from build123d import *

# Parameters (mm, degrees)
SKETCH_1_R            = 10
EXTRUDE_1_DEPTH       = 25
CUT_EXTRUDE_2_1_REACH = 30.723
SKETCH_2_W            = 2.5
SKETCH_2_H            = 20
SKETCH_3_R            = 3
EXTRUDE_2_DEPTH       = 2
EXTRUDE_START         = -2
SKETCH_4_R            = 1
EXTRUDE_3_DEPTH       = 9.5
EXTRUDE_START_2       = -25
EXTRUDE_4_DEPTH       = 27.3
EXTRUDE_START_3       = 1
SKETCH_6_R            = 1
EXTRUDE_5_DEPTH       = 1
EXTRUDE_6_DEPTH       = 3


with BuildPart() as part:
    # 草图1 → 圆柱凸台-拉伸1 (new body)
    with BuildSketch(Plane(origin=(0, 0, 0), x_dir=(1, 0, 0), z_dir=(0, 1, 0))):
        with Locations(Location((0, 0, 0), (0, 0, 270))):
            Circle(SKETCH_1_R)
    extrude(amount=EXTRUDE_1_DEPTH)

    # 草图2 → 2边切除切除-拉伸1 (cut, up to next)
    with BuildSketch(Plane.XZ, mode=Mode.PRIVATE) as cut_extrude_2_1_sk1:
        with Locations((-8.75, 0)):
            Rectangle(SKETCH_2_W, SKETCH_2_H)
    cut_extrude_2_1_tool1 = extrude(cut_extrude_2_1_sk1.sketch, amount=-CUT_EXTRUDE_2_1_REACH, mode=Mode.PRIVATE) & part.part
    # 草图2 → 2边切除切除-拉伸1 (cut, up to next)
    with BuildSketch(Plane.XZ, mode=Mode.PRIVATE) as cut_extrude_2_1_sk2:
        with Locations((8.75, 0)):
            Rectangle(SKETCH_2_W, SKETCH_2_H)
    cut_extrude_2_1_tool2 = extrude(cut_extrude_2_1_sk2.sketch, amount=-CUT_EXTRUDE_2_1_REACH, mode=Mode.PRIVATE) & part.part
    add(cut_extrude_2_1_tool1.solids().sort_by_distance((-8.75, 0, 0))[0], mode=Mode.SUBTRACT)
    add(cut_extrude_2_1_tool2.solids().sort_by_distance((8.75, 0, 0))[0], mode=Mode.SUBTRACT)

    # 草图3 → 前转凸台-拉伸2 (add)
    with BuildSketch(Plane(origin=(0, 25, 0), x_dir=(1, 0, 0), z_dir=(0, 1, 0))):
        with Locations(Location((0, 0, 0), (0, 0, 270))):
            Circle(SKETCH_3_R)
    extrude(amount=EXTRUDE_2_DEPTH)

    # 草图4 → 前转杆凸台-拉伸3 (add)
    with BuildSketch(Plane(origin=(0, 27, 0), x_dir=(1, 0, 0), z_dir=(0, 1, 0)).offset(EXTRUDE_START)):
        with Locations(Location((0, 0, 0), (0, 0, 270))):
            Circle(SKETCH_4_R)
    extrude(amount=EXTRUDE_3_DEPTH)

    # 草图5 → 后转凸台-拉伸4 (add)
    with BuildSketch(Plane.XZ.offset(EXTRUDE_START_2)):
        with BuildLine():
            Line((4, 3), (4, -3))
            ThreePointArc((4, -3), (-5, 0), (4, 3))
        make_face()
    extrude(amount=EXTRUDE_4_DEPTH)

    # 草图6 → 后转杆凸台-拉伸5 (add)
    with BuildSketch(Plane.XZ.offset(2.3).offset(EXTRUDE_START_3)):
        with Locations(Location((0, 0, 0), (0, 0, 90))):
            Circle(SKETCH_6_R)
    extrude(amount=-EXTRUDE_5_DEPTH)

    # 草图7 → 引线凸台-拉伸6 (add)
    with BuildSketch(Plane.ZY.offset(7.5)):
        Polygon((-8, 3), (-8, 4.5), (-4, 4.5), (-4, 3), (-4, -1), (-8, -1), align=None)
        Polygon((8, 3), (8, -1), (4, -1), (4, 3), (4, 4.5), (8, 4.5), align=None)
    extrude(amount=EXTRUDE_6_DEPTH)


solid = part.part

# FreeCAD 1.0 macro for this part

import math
import FreeCAD as App
import Part
import Sketcher

V = App.Vector


def add_polygon(sketch, points):
    """Adds a closed chain of lines whose ends are joined by coincident constraints."""
    first, n = sketch.GeometryCount, len(points)
    for a, b in zip(points, points[1:] + points[:1]):
        sketch.addGeometry(Part.LineSegment(App.Vector(*a, 0), App.Vector(*b, 0)), False)
    for i in range(n):
        sketch.addConstraint(Sketcher.Constraint("Coincident", first + i, 2, first + (i + 1) % n, 1))

doc = App.newDocument("Part")
body = doc.addObject("PartDesign::Body", "Body")

sketch1 = doc.addObject("Sketcher::SketchObject", "Sketch")
body.addObject(sketch1)
sketch1.AttachmentSupport = (doc.XZ_Plane, [""])
sketch1.MapMode = "FlatFace"
sketch1.addGeometry(Part.Circle(V(0, 0, 0), V(0, 0, 1), 10), False)
sketch1.addConstraint([
    Sketcher.Constraint("Coincident", 0, 3, -1, 1),
    Sketcher.Constraint("Diameter", 0, 20.0),
])
pad1 = doc.addObject("PartDesign::Pad", "Pad")
body.addObject(pad1)
pad1.Profile = sketch1
pad1.Length = 25
pad1.Reversed = True

sketch2 = doc.addObject("Sketcher::SketchObject", "Sketch001")
body.addObject(sketch2)
sketch2.AttachmentSupport = (doc.XZ_Plane, [""])
sketch2.MapMode = "FlatFace"
add_polygon(sketch2, [(-10, 10), (-10, -10), (-7.5, -10), (-7.5, 10)])
sketch2.addConstraint([
    Sketcher.Constraint("Vertical", 0),
    Sketcher.Constraint("Horizontal", 1),
    Sketcher.Constraint("Vertical", 2),
    Sketcher.Constraint("Horizontal", 3),
    Sketcher.Constraint("DistanceY", 0, 2, 0, 1, 20.0),
    Sketcher.Constraint("DistanceX", 1, 1, 1, 2, 2.5),
    Sketcher.Constraint("DistanceX", 0, 2, -1, 1, 10.0),
    Sketcher.Constraint("DistanceY", 0, 2, -1, 1, 10.0),
])
pocket1 = doc.addObject("PartDesign::Pocket", "Pocket")
body.addObject(pocket1)
pocket1.Profile = sketch2
pocket1.Type = "UpToFirst"

sketch3 = doc.addObject("Sketcher::SketchObject", "Sketch002")
body.addObject(sketch3)
sketch3.AttachmentSupport = (doc.XZ_Plane, [""])
sketch3.MapMode = "FlatFace"
add_polygon(sketch3, [(7.5, 10), (7.5, -10), (10, -10), (10, 10)])
sketch3.addConstraint([
    Sketcher.Constraint("Vertical", 0),
    Sketcher.Constraint("Horizontal", 1),
    Sketcher.Constraint("Vertical", 2),
    Sketcher.Constraint("Horizontal", 3),
    Sketcher.Constraint("DistanceY", 0, 2, 0, 1, 20.0),
    Sketcher.Constraint("DistanceX", 1, 1, 1, 2, 2.5),
    Sketcher.Constraint("DistanceY", 0, 2, -1, 1, 10.0),
    Sketcher.Constraint("DistanceX", -1, 1, 1, 2, 10.0),
])
pocket2 = doc.addObject("PartDesign::Pocket", "Pocket001")
body.addObject(pocket2)
pocket2.Profile = sketch3
pocket2.Type = "UpToFirst"

sketch4 = doc.addObject("Sketcher::SketchObject", "Sketch003")
body.addObject(sketch4)
sketch4.AttachmentSupport = (doc.XZ_Plane, [""])
sketch4.MapMode = "FlatFace"
sketch4.AttachmentOffset = App.Placement(V(0, 0, -25), App.Rotation())
sketch4.addGeometry(Part.Circle(V(0, 0, 0), V(0, 0, 1), 3), False)
sketch4.addConstraint([
    Sketcher.Constraint("Coincident", 0, 3, -1, 1),
    Sketcher.Constraint("Diameter", 0, 6.0),
])
pad2 = doc.addObject("PartDesign::Pad", "Pad001")
body.addObject(pad2)
pad2.Profile = sketch4
pad2.Length = 2
pad2.Reversed = True

sketch5 = doc.addObject("Sketcher::SketchObject", "Sketch004")
body.addObject(sketch5)
sketch5.AttachmentSupport = (doc.XZ_Plane, [""])
sketch5.MapMode = "FlatFace"
sketch5.AttachmentOffset = App.Placement(V(0, 0, -25), App.Rotation())
sketch5.addGeometry(Part.Circle(V(0, 0, 0), V(0, 0, 1), 1), False)
sketch5.addConstraint([
    Sketcher.Constraint("Coincident", 0, 3, -1, 1),
    Sketcher.Constraint("Diameter", 0, 2.0),
])
pad3 = doc.addObject("PartDesign::Pad", "Pad002")
body.addObject(pad3)
pad3.Profile = sketch5
pad3.Length = 9.5
pad3.Reversed = True

sketch6 = doc.addObject("Sketcher::SketchObject", "Sketch005")
body.addObject(sketch6)
sketch6.AttachmentSupport = (doc.XZ_Plane, [""])
sketch6.MapMode = "FlatFace"
sketch6.AttachmentOffset = App.Placement(V(0, 0, -25), App.Rotation())
sketch6.addGeometry([
    Part.LineSegment(V(4, -3, 0), V(4, 3, 0)),
    Part.ArcOfCircle(Part.Circle(V(0, 0, 0), V(0, 0, 1), 5), math.radians(37), math.radians(323)),
], False)
sketch6.addConstraint([
    Sketcher.Constraint("Coincident", 0, 1, 1, 2),
    Sketcher.Constraint("Coincident", 1, 1, 0, 2),
    Sketcher.Constraint("Vertical", 0),
    Sketcher.Constraint("Coincident", 1, 3, -1, 1),
    Sketcher.Constraint("Radius", 1, 5.0),
    Sketcher.Constraint("DistanceY", 0, 1, 0, 2, 6.0),
])
pad4 = doc.addObject("PartDesign::Pad", "Pad003")
body.addObject(pad4)
pad4.Profile = sketch6
pad4.Length = 27.3

sketch7 = doc.addObject("Sketcher::SketchObject", "Sketch006")
body.addObject(sketch7)
sketch7.AttachmentSupport = (doc.XZ_Plane, [""])
sketch7.MapMode = "FlatFace"
sketch7.AttachmentOffset = App.Placement(V(0, 0, 3.3), App.Rotation())
sketch7.addGeometry(Part.Circle(V(0, 0, 0), V(0, 0, 1), 1), False)
sketch7.addConstraint([
    Sketcher.Constraint("Coincident", 0, 3, -1, 1),
    Sketcher.Constraint("Diameter", 0, 2.0),
])
pad5 = doc.addObject("PartDesign::Pad", "Pad004")
body.addObject(pad5)
pad5.Profile = sketch7
pad5.Length = 1
pad5.Reversed = True

sketch8 = doc.addObject("Sketcher::SketchObject", "Sketch007")
body.addObject(sketch8)
sketch8.AttachmentSupport = (doc.YZ_Plane, [""])
sketch8.MapMode = "FlatFace"
sketch8.AttachmentOffset = App.Placement(V(0, 0, -7.5), App.Rotation())
add_polygon(sketch8, [(4.5, -8), (-1, -8), (-1, -4), (4.5, -4)])
add_polygon(sketch8, [(-1, 8), (4.5, 8), (4.5, 4), (-1, 4)])
sketch8.addConstraint([
    Sketcher.Constraint("Horizontal", 0),
    Sketcher.Constraint("Vertical", 1),
    Sketcher.Constraint("Horizontal", 2),
    Sketcher.Constraint("Vertical", 3),
    Sketcher.Constraint("Horizontal", 4),
    Sketcher.Constraint("Vertical", 5),
    Sketcher.Constraint("Horizontal", 6),
    Sketcher.Constraint("Vertical", 7),
    Sketcher.Constraint("Symmetric", 3, 2, 4, 2, -1),
    Sketcher.Constraint("Symmetric", 1, 2, 6, 2, -1),
    Sketcher.Constraint("DistanceY", 1, 1, 1, 2, 4.0),
    Sketcher.Constraint("DistanceX", 0, 2, 0, 1, 5.5),
    Sketcher.Constraint("DistanceX", 0, 2, -1, 1, 1.0),
    Sketcher.Constraint("DistanceY", 0, 2, -1, 1, 8.0),
])
pad6 = doc.addObject("PartDesign::Pad", "Pad005")
body.addObject(pad6)
pad6.Profile = sketch8
pad6.Length = 3
pad6.Reversed = True

doc.recompute()
